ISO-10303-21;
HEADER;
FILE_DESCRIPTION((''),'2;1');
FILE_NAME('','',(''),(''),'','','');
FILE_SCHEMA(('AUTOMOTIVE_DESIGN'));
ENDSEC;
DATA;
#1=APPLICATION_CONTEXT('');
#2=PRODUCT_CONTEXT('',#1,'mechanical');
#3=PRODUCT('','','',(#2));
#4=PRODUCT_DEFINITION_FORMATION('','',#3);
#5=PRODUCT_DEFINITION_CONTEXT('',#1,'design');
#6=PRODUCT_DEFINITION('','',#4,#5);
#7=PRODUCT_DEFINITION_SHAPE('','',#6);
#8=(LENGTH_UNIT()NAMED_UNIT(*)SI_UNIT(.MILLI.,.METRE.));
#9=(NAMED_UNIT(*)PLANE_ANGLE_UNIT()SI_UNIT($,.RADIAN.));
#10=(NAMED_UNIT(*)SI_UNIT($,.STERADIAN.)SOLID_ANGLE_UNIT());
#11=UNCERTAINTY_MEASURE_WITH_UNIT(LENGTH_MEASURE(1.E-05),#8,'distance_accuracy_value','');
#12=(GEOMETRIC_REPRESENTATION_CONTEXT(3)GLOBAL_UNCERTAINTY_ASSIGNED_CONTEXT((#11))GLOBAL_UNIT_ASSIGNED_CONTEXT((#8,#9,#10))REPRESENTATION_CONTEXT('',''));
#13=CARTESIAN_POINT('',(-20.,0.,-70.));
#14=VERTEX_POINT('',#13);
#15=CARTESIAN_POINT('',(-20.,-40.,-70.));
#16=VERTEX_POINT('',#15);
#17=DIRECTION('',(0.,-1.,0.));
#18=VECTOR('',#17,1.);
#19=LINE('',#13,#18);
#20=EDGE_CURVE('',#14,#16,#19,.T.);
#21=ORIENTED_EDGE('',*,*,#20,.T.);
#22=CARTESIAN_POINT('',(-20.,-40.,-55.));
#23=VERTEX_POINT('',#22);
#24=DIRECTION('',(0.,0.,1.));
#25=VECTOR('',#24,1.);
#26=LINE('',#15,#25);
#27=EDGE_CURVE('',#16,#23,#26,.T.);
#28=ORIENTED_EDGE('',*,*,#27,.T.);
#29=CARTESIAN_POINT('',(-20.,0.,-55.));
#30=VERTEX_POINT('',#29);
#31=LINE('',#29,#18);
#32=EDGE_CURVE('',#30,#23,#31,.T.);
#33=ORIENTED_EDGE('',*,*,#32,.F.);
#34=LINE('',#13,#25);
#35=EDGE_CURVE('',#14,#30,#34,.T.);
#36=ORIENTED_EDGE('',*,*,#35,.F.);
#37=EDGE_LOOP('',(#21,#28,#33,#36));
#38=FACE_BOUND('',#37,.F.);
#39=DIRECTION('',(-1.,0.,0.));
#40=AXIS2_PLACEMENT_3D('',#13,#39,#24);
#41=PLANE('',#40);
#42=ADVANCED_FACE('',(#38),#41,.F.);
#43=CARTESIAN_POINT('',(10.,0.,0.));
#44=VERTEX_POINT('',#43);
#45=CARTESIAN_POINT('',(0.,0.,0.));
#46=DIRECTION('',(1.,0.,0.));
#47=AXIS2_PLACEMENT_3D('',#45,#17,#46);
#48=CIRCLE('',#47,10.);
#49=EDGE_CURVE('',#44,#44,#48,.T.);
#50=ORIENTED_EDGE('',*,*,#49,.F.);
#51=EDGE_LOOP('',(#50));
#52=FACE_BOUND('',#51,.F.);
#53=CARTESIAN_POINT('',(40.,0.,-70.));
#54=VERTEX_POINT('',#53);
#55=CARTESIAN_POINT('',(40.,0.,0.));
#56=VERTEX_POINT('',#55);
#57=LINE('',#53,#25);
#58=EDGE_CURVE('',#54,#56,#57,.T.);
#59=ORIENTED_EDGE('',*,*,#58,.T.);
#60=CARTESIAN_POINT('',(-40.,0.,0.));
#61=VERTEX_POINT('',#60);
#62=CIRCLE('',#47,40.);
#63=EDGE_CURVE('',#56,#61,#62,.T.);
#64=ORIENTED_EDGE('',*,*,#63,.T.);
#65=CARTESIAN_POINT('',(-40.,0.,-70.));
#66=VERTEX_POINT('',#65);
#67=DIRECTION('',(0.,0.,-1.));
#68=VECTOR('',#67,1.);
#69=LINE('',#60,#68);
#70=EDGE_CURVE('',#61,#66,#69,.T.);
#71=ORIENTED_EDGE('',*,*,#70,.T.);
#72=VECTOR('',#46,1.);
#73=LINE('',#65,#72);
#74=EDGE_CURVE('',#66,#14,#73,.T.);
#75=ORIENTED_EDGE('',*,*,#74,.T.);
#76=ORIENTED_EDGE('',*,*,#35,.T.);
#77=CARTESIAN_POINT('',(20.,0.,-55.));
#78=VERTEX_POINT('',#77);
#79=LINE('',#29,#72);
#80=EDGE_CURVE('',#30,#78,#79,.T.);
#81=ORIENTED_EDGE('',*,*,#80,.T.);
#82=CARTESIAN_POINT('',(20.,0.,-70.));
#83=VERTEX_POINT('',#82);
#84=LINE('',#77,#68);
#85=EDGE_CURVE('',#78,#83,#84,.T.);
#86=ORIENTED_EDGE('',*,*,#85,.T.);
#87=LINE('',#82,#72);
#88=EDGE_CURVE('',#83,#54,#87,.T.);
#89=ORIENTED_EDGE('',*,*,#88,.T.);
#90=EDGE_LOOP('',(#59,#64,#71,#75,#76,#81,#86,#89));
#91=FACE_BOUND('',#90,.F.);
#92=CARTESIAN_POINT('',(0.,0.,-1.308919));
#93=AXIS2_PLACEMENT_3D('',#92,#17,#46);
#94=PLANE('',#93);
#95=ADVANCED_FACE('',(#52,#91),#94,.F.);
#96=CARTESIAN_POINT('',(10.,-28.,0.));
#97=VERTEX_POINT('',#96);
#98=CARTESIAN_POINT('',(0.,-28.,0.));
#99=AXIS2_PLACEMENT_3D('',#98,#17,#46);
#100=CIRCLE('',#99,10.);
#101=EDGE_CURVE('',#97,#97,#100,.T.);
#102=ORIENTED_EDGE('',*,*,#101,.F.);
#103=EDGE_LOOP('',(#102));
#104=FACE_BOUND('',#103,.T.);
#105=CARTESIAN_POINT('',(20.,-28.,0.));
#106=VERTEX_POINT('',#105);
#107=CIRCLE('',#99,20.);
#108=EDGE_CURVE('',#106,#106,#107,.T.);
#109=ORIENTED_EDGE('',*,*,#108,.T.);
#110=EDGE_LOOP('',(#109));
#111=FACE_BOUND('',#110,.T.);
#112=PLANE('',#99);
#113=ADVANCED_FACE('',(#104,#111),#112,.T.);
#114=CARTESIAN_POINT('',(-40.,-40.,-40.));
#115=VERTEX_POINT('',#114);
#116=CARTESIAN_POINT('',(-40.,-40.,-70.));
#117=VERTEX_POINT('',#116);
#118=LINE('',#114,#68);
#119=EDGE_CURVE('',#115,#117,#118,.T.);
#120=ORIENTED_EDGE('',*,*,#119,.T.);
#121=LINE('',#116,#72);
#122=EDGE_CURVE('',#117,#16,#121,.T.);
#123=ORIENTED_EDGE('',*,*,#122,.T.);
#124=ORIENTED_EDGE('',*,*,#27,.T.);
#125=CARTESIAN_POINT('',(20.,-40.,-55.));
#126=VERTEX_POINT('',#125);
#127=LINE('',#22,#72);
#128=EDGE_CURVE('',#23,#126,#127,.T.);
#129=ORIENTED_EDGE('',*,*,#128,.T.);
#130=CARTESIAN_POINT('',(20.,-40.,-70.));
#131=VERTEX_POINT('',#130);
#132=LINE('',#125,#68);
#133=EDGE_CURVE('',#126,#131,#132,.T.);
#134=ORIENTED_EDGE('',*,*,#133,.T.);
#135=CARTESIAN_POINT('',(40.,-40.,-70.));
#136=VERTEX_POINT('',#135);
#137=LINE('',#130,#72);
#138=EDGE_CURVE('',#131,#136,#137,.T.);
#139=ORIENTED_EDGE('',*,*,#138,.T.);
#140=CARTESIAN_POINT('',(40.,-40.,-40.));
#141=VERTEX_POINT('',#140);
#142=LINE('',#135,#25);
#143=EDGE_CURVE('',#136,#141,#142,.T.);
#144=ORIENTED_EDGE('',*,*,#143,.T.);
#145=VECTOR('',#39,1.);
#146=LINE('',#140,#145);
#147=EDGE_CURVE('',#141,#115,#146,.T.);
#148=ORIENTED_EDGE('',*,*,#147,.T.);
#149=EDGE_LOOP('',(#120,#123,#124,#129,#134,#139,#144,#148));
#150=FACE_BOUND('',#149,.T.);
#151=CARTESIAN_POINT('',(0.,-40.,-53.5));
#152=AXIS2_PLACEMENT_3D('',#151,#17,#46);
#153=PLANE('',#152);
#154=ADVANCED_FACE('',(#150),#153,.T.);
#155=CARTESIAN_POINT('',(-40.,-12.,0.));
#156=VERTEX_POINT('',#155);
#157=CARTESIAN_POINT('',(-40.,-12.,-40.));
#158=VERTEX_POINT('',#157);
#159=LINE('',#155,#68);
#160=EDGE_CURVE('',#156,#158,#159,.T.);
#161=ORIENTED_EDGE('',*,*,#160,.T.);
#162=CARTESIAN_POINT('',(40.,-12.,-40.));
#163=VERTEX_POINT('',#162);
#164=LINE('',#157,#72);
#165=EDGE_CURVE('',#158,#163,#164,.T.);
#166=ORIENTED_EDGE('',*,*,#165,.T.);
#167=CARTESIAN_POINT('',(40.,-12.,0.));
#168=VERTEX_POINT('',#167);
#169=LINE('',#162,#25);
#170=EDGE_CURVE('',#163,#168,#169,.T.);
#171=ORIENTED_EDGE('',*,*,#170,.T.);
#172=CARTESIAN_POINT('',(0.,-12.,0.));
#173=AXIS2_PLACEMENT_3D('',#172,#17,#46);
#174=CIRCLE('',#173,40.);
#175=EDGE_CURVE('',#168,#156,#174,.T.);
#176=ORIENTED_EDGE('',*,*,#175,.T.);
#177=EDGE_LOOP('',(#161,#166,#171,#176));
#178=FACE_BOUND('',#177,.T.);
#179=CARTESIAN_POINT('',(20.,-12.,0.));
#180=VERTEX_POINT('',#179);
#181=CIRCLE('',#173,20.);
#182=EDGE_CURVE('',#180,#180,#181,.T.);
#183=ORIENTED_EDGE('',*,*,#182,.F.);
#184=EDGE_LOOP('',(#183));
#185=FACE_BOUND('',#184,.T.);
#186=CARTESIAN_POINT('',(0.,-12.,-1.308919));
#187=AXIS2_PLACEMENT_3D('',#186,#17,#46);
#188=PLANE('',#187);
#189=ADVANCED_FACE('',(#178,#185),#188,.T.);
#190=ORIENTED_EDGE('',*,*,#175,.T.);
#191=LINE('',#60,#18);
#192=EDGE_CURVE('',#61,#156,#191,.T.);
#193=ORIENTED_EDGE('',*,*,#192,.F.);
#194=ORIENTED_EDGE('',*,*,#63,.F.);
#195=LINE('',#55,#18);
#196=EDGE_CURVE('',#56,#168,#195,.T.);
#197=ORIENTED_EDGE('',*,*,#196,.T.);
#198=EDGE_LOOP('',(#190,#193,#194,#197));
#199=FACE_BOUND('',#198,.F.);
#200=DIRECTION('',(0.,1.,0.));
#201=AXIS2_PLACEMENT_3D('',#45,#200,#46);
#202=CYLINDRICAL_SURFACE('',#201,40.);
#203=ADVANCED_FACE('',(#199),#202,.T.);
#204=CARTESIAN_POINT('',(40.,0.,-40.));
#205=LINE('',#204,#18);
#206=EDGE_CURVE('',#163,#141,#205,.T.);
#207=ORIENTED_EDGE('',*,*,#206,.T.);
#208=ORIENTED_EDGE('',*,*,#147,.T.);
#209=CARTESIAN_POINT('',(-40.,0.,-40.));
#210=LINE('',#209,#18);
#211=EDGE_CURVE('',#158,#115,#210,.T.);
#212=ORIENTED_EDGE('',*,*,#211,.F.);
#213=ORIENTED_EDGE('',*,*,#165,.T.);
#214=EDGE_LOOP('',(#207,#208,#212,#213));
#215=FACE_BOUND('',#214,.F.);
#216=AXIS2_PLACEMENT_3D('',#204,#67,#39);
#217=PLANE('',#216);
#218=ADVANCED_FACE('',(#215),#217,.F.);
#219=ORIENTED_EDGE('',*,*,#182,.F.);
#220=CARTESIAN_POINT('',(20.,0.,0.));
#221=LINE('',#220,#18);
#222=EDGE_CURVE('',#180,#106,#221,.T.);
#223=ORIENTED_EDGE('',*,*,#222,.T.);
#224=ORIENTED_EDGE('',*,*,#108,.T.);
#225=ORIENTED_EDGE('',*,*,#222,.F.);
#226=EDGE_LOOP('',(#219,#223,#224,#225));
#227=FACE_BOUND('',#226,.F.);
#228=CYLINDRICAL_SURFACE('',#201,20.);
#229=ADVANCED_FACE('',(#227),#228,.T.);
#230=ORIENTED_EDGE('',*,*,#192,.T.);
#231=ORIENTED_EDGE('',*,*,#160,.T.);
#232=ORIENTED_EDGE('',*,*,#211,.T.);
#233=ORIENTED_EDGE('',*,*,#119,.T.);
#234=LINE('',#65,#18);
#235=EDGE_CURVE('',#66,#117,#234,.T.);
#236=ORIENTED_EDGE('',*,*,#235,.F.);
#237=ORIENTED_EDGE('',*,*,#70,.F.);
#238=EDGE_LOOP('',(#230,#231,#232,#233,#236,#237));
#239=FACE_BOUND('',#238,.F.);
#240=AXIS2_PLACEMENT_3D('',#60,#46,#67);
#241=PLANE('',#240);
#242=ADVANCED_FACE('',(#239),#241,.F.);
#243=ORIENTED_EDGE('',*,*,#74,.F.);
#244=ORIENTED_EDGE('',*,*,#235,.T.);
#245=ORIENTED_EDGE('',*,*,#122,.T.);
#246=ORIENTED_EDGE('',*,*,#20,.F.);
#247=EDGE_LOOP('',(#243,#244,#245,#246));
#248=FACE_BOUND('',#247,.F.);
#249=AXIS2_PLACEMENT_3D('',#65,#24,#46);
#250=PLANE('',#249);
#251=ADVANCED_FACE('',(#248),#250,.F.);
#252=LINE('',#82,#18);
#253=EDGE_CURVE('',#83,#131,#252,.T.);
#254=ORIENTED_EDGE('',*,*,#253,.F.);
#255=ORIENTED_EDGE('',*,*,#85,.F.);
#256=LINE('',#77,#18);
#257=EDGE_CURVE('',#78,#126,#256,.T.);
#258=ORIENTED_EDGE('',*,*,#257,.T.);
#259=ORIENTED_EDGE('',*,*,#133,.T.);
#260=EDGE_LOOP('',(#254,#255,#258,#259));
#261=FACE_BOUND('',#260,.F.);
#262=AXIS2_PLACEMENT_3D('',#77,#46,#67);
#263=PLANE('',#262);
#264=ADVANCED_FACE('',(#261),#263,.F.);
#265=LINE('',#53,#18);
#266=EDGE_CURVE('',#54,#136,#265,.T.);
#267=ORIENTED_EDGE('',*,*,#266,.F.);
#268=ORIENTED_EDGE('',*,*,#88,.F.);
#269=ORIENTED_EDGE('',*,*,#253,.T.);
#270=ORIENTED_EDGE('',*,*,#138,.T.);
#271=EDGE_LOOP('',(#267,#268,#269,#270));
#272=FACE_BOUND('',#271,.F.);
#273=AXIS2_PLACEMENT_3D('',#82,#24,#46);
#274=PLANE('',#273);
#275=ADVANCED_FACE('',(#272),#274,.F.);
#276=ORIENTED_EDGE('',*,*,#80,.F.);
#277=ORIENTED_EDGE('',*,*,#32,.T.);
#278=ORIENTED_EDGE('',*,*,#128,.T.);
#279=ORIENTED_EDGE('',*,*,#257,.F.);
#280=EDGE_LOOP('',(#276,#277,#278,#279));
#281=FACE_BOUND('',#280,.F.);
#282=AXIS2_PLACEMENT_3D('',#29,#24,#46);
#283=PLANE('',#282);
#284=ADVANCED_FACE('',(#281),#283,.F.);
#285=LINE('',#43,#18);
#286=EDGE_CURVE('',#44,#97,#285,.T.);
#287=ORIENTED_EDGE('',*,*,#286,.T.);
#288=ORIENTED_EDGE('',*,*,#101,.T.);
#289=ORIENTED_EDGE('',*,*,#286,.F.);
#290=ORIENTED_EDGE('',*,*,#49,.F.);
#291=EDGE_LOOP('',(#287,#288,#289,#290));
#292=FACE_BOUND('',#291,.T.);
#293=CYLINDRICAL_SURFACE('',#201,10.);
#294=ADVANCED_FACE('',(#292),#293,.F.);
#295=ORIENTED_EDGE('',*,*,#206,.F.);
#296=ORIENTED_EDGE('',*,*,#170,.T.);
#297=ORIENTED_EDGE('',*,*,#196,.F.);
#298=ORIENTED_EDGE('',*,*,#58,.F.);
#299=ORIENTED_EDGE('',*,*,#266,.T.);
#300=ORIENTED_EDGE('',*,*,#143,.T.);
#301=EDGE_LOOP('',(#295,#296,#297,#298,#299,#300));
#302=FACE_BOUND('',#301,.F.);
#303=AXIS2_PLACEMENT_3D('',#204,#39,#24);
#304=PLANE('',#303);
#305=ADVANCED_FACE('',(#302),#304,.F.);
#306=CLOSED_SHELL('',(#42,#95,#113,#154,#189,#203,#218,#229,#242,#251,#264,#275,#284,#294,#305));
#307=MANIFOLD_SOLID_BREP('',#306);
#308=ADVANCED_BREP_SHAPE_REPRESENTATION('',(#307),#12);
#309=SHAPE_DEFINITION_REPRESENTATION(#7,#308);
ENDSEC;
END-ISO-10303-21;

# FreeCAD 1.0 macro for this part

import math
import FreeCAD as App
import Part
import Sketcher
Q = App.Units.Quantity


def add_polygon(sketch, points):
    """Adds a closed chain of lines whose ends are joined by coincident constraints."""
    first, n = sketch.GeometryCount, len(points)
    for a, b in zip(points, points[1:] + points[:1]):
        sketch.addGeometry(Part.LineSegment(App.Vector(*a, 0), App.Vector(*b, 0)), False)
    for i in range(n):
        sketch.addConstraint(Sketcher.Constraint("Coincident", first + i, 2, first + (i + 1) % n, 1))

doc = App.newDocument("Part")
body = doc.addObject("PartDesign::Body", "Body")

sketch1 = body.newObject("Sketcher::SketchObject", "Sketch")
sketch1.AttachmentSupport = (doc.getObject("XZ_Plane"), [""])
sketch1.MapMode = "FlatFace"
sketch1.addGeometry(Part.Circle(App.Vector(0, 0, 0), App.Vector(0, 0, 1), 20), False)
sketch1.addGeometry(Part.Circle(App.Vector(0, 0, 0), App.Vector(0, 0, 1), 10), False)
sketch1.addConstraint(Sketcher.Constraint("Coincident", 0, 3, -1, 1))
sketch1.addConstraint(Sketcher.Constraint("Coincident", 1, 3, -1, 1))
sketch1.addConstraint(Sketcher.Constraint("Diameter", 0, Q("40 mm")))
sketch1.addConstraint(Sketcher.Constraint("Diameter", 1, Q("20 mm")))
pad1 = body.newObject("PartDesign::Pad", "Pad")
pad1.Profile = sketch1
pad1.Length = 28
body2 = doc.addObject("PartDesign::Body", "Body001")

sketch2 = body2.newObject("Sketcher::SketchObject", "Sketch001")
sketch2.AttachmentSupport = (doc.getObject("XZ_Plane001"), [""])
sketch2.MapMode = "FlatFace"
add_polygon(sketch2, [(40, -40), (-40, -40), (-40, -70), (-20, -70), (-20, -55), (20, -55), (20, -70), (40, -70)])
sketch2.addConstraint(Sketcher.Constraint("Horizontal", 0))
sketch2.addConstraint(Sketcher.Constraint("Vertical", 1))
sketch2.addConstraint(Sketcher.Constraint("Horizontal", 2))
sketch2.addConstraint(Sketcher.Constraint("Vertical", 3))
sketch2.addConstraint(Sketcher.Constraint("Horizontal", 4))
sketch2.addConstraint(Sketcher.Constraint("Vertical", 5))
sketch2.addConstraint(Sketcher.Constraint("Horizontal", 6))
sketch2.addConstraint(Sketcher.Constraint("Vertical", 7))
sketch2.addConstraint(Sketcher.Constraint("Symmetric", 2, 2, 5, 2, -2))
sketch2.addConstraint(Sketcher.Constraint("Equal", 2, 6))
sketch2.addConstraint(Sketcher.Constraint("DistanceX", 0, 2, 0, 1, Q("80 mm")))
sketch2.addConstraint(Sketcher.Constraint("DistanceX", 2, 1, 2, 2, Q("20 mm")))
sketch2.addConstraint(Sketcher.Constraint("DistanceY", 1, 2, 1, 1, Q("30 mm")))
sketch2.addConstraint(Sketcher.Constraint("DistanceY", 3, 1, 3, 2, Q("15 mm")))
sketch2.addConstraint(Sketcher.Constraint("DistanceY", 0, 2, -1, 1, Q("40 mm")))
pad2 = body2.newObject("PartDesign::Pad", "Pad001")
pad2.Profile = sketch2
pad2.Length = 40
body.AllowCompound = True
doc.recompute()

boolean = body.newObject("PartDesign::Boolean", "Boolean")
boolean.Type = "Fuse"
boolean.addObjects([body2])

sketch3 = body.newObject("Sketcher::SketchObject", "Sketch002")
sketch3.AttachmentSupport = (doc.getObject("XZ_Plane"), [""])
sketch3.MapMode = "FlatFace"
sketch3.addGeometry(Part.ArcOfCircle(Part.Circle(App.Vector(0, 0, 0), App.Vector(0, 0, 1), 40), math.radians(0), math.radians(180)), False)
sketch3.addGeometry(Part.LineSegment(App.Vector(-40, 0, 0), App.Vector(-40, -40, 0)), False)
sketch3.addGeometry(Part.LineSegment(App.Vector(-40, -40, 0), App.Vector(40, -40, 0)), False)
sketch3.addGeometry(Part.LineSegment(App.Vector(40, -40, 0), App.Vector(40, 0, 0)), False)
sketch3.addGeometry(Part.Circle(App.Vector(0, 0, 0), App.Vector(0, 0, 1), 20), False)
sketch3.addConstraint(Sketcher.Constraint("Tangent", 0, 2, 1, 1))
sketch3.addConstraint(Sketcher.Constraint("Coincident", 1, 2, 2, 1))
sketch3.addConstraint(Sketcher.Constraint("Coincident", 2, 2, 3, 1))
sketch3.addConstraint(Sketcher.Constraint("Tangent", 3, 2, 0, 1))
sketch3.addConstraint(Sketcher.Constraint("Vertical", 1))
sketch3.addConstraint(Sketcher.Constraint("Horizontal", 2))
sketch3.addConstraint(Sketcher.Constraint("Vertical", 3))
sketch3.addConstraint(Sketcher.Constraint("Coincident", 0, 3, -1, 1))
sketch3.addConstraint(Sketcher.Constraint("Coincident", 4, 3, -1, 1))
sketch3.addConstraint(Sketcher.Constraint("Diameter", 4, Q("40 mm")))
sketch3.addConstraint(Sketcher.Constraint("Radius", 0, Q("40 mm")))
sketch3.addConstraint(Sketcher.Constraint("DistanceY", 1, 2, 1, 1, Q("40 mm")))
pad3 = body.newObject("PartDesign::Pad", "Pad002")
pad3.Profile = sketch3
pad3.Length = 12

doc.recompute()
